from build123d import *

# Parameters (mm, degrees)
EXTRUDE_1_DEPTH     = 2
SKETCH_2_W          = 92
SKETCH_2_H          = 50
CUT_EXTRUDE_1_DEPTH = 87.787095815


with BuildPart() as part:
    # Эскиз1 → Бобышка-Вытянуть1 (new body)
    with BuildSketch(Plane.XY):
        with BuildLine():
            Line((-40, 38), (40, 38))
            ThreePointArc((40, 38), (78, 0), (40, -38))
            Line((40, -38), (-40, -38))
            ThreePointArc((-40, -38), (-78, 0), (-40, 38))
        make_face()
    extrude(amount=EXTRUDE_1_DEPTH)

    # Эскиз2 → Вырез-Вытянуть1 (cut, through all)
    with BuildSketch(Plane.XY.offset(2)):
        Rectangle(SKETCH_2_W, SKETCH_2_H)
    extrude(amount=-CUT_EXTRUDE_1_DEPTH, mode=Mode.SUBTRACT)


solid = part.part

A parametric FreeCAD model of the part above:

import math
import FreeCAD as App
import Part
import Sketcher

V = App.Vector
Q = App.Units.Quantity


def add_polygon(sketch, points):
    """Adds a closed chain of lines whose ends are joined by coincident constraints."""
    first, n = sketch.GeometryCount, len(points)
    for a, b in zip(points, points[1:] + points[:1]):
        sketch.addGeometry(Part.LineSegment(App.Vector(*a, 0), App.Vector(*b, 0)), False)
    for i in range(n):
        sketch.addConstraint(Sketcher.Constraint("Coincident", first + i, 2, first + (i + 1) % n, 1))

doc = App.newDocument("Part")
body = doc.addObject("PartDesign::Body", "Body")

sketch1 = doc.addObject("Sketcher::SketchObject", "Sketch")
body.addObject(sketch1)
sketch1.AttachmentSupport = (doc.XY_Plane, [""])
sketch1.MapMode = "FlatFace"
sketch1.addGeometry([
    Part.LineSegment(V(40, 38, 0), V(-40, 38, 0)),
    Part.ArcOfCircle(Part.Circle(V(-40, 0, 0), V(0, 0, 1), 38), math.radians(90), math.radians(270)),
    Part.LineSegment(V(-40, -38, 0), V(40, -38, 0)),
    Part.ArcOfCircle(Part.Circle(V(40, 0, 0), V(0, 0, 1), 38), math.radians(-90), math.radians(90)),
], False)
sketch1.addConstraint([
    Sketcher.Constraint("Tangent", 0, 2, 1, 1),
    Sketcher.Constraint("Tangent", 1, 2, 2, 1),
    Sketcher.Constraint("Tangent", 2, 2, 3, 1),
    Sketcher.Constraint("Tangent", 3, 2, 0, 1),
    Sketcher.Constraint("Horizontal", 0),
    Sketcher.Constraint("Horizontal", 2),
    Sketcher.Constraint("Symmetric", 1, 3, 3, 3, -1, 1),
    Sketcher.Constraint("Radius", 1, Q("38 mm")),
    Sketcher.Constraint("DistanceX", 0, 2, 0, 1, Q("80 mm")),
])
pad1 = doc.addObject("PartDesign::Pad", "Pad")
body.addObject(pad1)
pad1.Profile = sketch1
pad1.Length = 2

sketch2 = doc.addObject("Sketcher::SketchObject", "Sketch001")
body.addObject(sketch2)
sketch2.AttachmentSupport = (doc.XY_Plane, [""])
sketch2.MapMode = "FlatFace"
sketch2.AttachmentOffset = App.Placement(V(0, 0, 2), App.Rotation())
add_polygon(sketch2, [(-46, 25), (-46, -25), (46, -25), (46, 25)])
sketch2.addConstraint([
    Sketcher.Constraint("Vertical", 0),
    Sketcher.Constraint("Horizontal", 1),
    Sketcher.Constraint("Vertical", 2),
    Sketcher.Constraint("Horizontal", 3),
    Sketcher.Constraint("Symmetric", 0, 2, 2, 2, -1, 1),
    Sketcher.Constraint("DistanceX", 1, 1, 1, 2, Q("92 mm")),
    Sketcher.Constraint("DistanceY", 0, 2, 0, 1, Q("50 mm")),
])
pocket1 = doc.addObject("PartDesign::Pocket", "Pocket")
body.addObject(pocket1)
pocket1.Profile = sketch2
pocket1.Type = "ThroughAll"

doc.recompute()
